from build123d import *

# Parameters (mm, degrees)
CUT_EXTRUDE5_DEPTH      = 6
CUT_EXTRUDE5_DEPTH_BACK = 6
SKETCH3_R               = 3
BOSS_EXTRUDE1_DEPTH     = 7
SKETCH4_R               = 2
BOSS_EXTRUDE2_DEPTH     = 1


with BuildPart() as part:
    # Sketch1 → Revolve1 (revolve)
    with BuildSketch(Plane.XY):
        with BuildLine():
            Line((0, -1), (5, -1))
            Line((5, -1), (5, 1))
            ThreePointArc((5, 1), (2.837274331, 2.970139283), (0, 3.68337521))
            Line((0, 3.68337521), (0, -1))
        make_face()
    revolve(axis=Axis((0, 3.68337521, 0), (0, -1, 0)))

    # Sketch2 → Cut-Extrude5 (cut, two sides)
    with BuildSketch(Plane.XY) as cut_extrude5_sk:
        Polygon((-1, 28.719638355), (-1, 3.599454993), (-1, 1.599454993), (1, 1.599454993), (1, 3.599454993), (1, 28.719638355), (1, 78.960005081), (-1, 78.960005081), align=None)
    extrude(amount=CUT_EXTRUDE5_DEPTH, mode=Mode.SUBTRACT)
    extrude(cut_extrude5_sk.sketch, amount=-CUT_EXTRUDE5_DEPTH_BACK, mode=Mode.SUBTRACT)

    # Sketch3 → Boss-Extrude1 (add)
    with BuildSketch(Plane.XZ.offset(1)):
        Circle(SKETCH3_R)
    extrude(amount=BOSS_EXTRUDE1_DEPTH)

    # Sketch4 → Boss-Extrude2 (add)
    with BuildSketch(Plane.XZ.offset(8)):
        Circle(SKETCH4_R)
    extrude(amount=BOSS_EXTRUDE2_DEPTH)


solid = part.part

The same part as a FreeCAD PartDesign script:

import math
import FreeCAD as App
import Part
import Sketcher


def add_polygon(sketch, points):
    """Adds a closed chain of lines whose ends are joined by coincident constraints."""
    first, n = sketch.GeometryCount, len(points)
    for a, b in zip(points, points[1:] + points[:1]):
        sketch.addGeometry(Part.LineSegment(App.Vector(*a, 0), App.Vector(*b, 0)), False)
    for i in range(n):
        sketch.addConstraint(Sketcher.Constraint("Coincident", first + i, 2, first + (i + 1) % n, 1))

doc = App.newDocument("Part")
body = doc.addObject("PartDesign::Body", "Body")

# Sketch on XY plane
sketch1 = body.newObject("Sketcher::SketchObject", "Sketch")
sketch1.AttachmentSupport = (doc.getObject("XY_Plane"), [""])
sketch1.MapMode = "FlatFace"
sketch1.addGeometry([
    Part.LineSegment(App.Vector(0, -1, 0), App.Vector(5, -1, 0)),
    Part.LineSegment(App.Vector(5, -1, 0), App.Vector(5, 1, 0)),
    Part.ArcOfCircle(Part.Circle(App.Vector(0, -2.3, 0), App.Vector(0, 0, 1), 6), math.radians(34), math.radians(90)),
    Part.LineSegment(App.Vector(0, 3.7, 0), App.Vector(0, -1, 0)),
], False)
sketch1.addConstraint([
    Sketcher.Constraint("Coincident", 0, 2, 1, 1),
    Sketcher.Constraint("Coincident", 1, 2, 2, 1),
    Sketcher.Constraint("Coincident", 2, 2, 3, 1),
    Sketcher.Constraint("Coincident", 3, 2, 0, 1),
    Sketcher.Constraint("Horizontal", 0),
    Sketcher.Constraint("Vertical", 1),
    Sketcher.Constraint("Vertical", 3),
    Sketcher.Constraint("PointOnObject", 2, 3, -2),
    Sketcher.Constraint("PointOnObject", 2, 2, -2),
    Sketcher.Constraint("Radius", 2, 6.0),
    Sketcher.Constraint("DistanceX", 0, 1, 0, 2, 5.0),
    Sketcher.Constraint("DistanceY", 1, 1, 1, 2, 2.0),
    Sketcher.Constraint("DistanceY", 0, 2, -1, 1, 1.0),
])
revolution = body.newObject("PartDesign::Revolution", "Revolution")
revolution.Profile = sketch1
revolution.ReferenceAxis = (sketch1, ["V_Axis"])
revolution.Angle = 360

# Sketch on XY plane
sketch2 = body.newObject("Sketcher::SketchObject", "Sketch001")
sketch2.AttachmentSupport = (doc.getObject("XY_Plane"), [""])
sketch2.MapMode = "FlatFace"
add_polygon(sketch2, [(-1, 1.6), (1, 1.6), (1, 79), (-1, 79)])  # lines 0-3
sketch2.addConstraint([
    Sketcher.Constraint("Horizontal", 0),
    Sketcher.Constraint("Vertical", 1),
    Sketcher.Constraint("Horizontal", 2),
    Sketcher.Constraint("Vertical", 3),
    Sketcher.Constraint("DistanceX", 0, 1, 0, 2, 2.0),
    Sketcher.Constraint("DistanceX", -1, 1, 0, 2, 1.0),
    Sketcher.Constraint("DistanceY", 1, 1, 1, 2, 77.36055),
    Sketcher.Constraint("DistanceY", -1, 1, 0, 2, 1.599455),
])
pocket1 = body.newObject("PartDesign::Pocket", "Pocket")
pocket1.Profile = sketch2
pocket1.Type = "ThroughAll"
pocket1.Midplane = True

# Sketch on XZ plane
sketch3 = body.newObject("Sketcher::SketchObject", "Sketch002")
sketch3.AttachmentSupport = (doc.getObject("XZ_Plane"), [""])
sketch3.MapMode = "FlatFace"
sketch3.AttachmentOffset = App.Placement(App.Vector(0, 0, 1), App.Rotation())
sketch3.addGeometry(Part.Circle(App.Vector(0, 0, 0), App.Vector(0, 0, 1), 3), False)
sketch3.addConstraint([
    Sketcher.Constraint("Coincident", 0, 3, -1, 1),
    Sketcher.Constraint("Diameter", 0, 6.0),
])
pad1 = body.newObject("PartDesign::Pad", "Pad")
pad1.Profile = sketch3
pad1.Length = 7

# Sketch on XZ plane
sketch4 = body.newObject("Sketcher::SketchObject", "Sketch003")
sketch4.AttachmentSupport = (doc.getObject("XZ_Plane"), [""])
sketch4.MapMode = "FlatFace"
sketch4.AttachmentOffset = App.Placement(App.Vector(0, 0, 8), App.Rotation())
sketch4.addGeometry(Part.Circle(App.Vector(0, 0, 0), App.Vector(0, 0, 1), 2), False)
sketch4.addConstraint([
    Sketcher.Constraint("Coincident", 0, 3, -1, 1),
    Sketcher.Constraint("Diameter", 0, 4.0),
])
pad2 = body.newObject("PartDesign::Pad", "Pad001")
pad2.Profile = sketch4
pad2.Length = 1

doc.recompute()
